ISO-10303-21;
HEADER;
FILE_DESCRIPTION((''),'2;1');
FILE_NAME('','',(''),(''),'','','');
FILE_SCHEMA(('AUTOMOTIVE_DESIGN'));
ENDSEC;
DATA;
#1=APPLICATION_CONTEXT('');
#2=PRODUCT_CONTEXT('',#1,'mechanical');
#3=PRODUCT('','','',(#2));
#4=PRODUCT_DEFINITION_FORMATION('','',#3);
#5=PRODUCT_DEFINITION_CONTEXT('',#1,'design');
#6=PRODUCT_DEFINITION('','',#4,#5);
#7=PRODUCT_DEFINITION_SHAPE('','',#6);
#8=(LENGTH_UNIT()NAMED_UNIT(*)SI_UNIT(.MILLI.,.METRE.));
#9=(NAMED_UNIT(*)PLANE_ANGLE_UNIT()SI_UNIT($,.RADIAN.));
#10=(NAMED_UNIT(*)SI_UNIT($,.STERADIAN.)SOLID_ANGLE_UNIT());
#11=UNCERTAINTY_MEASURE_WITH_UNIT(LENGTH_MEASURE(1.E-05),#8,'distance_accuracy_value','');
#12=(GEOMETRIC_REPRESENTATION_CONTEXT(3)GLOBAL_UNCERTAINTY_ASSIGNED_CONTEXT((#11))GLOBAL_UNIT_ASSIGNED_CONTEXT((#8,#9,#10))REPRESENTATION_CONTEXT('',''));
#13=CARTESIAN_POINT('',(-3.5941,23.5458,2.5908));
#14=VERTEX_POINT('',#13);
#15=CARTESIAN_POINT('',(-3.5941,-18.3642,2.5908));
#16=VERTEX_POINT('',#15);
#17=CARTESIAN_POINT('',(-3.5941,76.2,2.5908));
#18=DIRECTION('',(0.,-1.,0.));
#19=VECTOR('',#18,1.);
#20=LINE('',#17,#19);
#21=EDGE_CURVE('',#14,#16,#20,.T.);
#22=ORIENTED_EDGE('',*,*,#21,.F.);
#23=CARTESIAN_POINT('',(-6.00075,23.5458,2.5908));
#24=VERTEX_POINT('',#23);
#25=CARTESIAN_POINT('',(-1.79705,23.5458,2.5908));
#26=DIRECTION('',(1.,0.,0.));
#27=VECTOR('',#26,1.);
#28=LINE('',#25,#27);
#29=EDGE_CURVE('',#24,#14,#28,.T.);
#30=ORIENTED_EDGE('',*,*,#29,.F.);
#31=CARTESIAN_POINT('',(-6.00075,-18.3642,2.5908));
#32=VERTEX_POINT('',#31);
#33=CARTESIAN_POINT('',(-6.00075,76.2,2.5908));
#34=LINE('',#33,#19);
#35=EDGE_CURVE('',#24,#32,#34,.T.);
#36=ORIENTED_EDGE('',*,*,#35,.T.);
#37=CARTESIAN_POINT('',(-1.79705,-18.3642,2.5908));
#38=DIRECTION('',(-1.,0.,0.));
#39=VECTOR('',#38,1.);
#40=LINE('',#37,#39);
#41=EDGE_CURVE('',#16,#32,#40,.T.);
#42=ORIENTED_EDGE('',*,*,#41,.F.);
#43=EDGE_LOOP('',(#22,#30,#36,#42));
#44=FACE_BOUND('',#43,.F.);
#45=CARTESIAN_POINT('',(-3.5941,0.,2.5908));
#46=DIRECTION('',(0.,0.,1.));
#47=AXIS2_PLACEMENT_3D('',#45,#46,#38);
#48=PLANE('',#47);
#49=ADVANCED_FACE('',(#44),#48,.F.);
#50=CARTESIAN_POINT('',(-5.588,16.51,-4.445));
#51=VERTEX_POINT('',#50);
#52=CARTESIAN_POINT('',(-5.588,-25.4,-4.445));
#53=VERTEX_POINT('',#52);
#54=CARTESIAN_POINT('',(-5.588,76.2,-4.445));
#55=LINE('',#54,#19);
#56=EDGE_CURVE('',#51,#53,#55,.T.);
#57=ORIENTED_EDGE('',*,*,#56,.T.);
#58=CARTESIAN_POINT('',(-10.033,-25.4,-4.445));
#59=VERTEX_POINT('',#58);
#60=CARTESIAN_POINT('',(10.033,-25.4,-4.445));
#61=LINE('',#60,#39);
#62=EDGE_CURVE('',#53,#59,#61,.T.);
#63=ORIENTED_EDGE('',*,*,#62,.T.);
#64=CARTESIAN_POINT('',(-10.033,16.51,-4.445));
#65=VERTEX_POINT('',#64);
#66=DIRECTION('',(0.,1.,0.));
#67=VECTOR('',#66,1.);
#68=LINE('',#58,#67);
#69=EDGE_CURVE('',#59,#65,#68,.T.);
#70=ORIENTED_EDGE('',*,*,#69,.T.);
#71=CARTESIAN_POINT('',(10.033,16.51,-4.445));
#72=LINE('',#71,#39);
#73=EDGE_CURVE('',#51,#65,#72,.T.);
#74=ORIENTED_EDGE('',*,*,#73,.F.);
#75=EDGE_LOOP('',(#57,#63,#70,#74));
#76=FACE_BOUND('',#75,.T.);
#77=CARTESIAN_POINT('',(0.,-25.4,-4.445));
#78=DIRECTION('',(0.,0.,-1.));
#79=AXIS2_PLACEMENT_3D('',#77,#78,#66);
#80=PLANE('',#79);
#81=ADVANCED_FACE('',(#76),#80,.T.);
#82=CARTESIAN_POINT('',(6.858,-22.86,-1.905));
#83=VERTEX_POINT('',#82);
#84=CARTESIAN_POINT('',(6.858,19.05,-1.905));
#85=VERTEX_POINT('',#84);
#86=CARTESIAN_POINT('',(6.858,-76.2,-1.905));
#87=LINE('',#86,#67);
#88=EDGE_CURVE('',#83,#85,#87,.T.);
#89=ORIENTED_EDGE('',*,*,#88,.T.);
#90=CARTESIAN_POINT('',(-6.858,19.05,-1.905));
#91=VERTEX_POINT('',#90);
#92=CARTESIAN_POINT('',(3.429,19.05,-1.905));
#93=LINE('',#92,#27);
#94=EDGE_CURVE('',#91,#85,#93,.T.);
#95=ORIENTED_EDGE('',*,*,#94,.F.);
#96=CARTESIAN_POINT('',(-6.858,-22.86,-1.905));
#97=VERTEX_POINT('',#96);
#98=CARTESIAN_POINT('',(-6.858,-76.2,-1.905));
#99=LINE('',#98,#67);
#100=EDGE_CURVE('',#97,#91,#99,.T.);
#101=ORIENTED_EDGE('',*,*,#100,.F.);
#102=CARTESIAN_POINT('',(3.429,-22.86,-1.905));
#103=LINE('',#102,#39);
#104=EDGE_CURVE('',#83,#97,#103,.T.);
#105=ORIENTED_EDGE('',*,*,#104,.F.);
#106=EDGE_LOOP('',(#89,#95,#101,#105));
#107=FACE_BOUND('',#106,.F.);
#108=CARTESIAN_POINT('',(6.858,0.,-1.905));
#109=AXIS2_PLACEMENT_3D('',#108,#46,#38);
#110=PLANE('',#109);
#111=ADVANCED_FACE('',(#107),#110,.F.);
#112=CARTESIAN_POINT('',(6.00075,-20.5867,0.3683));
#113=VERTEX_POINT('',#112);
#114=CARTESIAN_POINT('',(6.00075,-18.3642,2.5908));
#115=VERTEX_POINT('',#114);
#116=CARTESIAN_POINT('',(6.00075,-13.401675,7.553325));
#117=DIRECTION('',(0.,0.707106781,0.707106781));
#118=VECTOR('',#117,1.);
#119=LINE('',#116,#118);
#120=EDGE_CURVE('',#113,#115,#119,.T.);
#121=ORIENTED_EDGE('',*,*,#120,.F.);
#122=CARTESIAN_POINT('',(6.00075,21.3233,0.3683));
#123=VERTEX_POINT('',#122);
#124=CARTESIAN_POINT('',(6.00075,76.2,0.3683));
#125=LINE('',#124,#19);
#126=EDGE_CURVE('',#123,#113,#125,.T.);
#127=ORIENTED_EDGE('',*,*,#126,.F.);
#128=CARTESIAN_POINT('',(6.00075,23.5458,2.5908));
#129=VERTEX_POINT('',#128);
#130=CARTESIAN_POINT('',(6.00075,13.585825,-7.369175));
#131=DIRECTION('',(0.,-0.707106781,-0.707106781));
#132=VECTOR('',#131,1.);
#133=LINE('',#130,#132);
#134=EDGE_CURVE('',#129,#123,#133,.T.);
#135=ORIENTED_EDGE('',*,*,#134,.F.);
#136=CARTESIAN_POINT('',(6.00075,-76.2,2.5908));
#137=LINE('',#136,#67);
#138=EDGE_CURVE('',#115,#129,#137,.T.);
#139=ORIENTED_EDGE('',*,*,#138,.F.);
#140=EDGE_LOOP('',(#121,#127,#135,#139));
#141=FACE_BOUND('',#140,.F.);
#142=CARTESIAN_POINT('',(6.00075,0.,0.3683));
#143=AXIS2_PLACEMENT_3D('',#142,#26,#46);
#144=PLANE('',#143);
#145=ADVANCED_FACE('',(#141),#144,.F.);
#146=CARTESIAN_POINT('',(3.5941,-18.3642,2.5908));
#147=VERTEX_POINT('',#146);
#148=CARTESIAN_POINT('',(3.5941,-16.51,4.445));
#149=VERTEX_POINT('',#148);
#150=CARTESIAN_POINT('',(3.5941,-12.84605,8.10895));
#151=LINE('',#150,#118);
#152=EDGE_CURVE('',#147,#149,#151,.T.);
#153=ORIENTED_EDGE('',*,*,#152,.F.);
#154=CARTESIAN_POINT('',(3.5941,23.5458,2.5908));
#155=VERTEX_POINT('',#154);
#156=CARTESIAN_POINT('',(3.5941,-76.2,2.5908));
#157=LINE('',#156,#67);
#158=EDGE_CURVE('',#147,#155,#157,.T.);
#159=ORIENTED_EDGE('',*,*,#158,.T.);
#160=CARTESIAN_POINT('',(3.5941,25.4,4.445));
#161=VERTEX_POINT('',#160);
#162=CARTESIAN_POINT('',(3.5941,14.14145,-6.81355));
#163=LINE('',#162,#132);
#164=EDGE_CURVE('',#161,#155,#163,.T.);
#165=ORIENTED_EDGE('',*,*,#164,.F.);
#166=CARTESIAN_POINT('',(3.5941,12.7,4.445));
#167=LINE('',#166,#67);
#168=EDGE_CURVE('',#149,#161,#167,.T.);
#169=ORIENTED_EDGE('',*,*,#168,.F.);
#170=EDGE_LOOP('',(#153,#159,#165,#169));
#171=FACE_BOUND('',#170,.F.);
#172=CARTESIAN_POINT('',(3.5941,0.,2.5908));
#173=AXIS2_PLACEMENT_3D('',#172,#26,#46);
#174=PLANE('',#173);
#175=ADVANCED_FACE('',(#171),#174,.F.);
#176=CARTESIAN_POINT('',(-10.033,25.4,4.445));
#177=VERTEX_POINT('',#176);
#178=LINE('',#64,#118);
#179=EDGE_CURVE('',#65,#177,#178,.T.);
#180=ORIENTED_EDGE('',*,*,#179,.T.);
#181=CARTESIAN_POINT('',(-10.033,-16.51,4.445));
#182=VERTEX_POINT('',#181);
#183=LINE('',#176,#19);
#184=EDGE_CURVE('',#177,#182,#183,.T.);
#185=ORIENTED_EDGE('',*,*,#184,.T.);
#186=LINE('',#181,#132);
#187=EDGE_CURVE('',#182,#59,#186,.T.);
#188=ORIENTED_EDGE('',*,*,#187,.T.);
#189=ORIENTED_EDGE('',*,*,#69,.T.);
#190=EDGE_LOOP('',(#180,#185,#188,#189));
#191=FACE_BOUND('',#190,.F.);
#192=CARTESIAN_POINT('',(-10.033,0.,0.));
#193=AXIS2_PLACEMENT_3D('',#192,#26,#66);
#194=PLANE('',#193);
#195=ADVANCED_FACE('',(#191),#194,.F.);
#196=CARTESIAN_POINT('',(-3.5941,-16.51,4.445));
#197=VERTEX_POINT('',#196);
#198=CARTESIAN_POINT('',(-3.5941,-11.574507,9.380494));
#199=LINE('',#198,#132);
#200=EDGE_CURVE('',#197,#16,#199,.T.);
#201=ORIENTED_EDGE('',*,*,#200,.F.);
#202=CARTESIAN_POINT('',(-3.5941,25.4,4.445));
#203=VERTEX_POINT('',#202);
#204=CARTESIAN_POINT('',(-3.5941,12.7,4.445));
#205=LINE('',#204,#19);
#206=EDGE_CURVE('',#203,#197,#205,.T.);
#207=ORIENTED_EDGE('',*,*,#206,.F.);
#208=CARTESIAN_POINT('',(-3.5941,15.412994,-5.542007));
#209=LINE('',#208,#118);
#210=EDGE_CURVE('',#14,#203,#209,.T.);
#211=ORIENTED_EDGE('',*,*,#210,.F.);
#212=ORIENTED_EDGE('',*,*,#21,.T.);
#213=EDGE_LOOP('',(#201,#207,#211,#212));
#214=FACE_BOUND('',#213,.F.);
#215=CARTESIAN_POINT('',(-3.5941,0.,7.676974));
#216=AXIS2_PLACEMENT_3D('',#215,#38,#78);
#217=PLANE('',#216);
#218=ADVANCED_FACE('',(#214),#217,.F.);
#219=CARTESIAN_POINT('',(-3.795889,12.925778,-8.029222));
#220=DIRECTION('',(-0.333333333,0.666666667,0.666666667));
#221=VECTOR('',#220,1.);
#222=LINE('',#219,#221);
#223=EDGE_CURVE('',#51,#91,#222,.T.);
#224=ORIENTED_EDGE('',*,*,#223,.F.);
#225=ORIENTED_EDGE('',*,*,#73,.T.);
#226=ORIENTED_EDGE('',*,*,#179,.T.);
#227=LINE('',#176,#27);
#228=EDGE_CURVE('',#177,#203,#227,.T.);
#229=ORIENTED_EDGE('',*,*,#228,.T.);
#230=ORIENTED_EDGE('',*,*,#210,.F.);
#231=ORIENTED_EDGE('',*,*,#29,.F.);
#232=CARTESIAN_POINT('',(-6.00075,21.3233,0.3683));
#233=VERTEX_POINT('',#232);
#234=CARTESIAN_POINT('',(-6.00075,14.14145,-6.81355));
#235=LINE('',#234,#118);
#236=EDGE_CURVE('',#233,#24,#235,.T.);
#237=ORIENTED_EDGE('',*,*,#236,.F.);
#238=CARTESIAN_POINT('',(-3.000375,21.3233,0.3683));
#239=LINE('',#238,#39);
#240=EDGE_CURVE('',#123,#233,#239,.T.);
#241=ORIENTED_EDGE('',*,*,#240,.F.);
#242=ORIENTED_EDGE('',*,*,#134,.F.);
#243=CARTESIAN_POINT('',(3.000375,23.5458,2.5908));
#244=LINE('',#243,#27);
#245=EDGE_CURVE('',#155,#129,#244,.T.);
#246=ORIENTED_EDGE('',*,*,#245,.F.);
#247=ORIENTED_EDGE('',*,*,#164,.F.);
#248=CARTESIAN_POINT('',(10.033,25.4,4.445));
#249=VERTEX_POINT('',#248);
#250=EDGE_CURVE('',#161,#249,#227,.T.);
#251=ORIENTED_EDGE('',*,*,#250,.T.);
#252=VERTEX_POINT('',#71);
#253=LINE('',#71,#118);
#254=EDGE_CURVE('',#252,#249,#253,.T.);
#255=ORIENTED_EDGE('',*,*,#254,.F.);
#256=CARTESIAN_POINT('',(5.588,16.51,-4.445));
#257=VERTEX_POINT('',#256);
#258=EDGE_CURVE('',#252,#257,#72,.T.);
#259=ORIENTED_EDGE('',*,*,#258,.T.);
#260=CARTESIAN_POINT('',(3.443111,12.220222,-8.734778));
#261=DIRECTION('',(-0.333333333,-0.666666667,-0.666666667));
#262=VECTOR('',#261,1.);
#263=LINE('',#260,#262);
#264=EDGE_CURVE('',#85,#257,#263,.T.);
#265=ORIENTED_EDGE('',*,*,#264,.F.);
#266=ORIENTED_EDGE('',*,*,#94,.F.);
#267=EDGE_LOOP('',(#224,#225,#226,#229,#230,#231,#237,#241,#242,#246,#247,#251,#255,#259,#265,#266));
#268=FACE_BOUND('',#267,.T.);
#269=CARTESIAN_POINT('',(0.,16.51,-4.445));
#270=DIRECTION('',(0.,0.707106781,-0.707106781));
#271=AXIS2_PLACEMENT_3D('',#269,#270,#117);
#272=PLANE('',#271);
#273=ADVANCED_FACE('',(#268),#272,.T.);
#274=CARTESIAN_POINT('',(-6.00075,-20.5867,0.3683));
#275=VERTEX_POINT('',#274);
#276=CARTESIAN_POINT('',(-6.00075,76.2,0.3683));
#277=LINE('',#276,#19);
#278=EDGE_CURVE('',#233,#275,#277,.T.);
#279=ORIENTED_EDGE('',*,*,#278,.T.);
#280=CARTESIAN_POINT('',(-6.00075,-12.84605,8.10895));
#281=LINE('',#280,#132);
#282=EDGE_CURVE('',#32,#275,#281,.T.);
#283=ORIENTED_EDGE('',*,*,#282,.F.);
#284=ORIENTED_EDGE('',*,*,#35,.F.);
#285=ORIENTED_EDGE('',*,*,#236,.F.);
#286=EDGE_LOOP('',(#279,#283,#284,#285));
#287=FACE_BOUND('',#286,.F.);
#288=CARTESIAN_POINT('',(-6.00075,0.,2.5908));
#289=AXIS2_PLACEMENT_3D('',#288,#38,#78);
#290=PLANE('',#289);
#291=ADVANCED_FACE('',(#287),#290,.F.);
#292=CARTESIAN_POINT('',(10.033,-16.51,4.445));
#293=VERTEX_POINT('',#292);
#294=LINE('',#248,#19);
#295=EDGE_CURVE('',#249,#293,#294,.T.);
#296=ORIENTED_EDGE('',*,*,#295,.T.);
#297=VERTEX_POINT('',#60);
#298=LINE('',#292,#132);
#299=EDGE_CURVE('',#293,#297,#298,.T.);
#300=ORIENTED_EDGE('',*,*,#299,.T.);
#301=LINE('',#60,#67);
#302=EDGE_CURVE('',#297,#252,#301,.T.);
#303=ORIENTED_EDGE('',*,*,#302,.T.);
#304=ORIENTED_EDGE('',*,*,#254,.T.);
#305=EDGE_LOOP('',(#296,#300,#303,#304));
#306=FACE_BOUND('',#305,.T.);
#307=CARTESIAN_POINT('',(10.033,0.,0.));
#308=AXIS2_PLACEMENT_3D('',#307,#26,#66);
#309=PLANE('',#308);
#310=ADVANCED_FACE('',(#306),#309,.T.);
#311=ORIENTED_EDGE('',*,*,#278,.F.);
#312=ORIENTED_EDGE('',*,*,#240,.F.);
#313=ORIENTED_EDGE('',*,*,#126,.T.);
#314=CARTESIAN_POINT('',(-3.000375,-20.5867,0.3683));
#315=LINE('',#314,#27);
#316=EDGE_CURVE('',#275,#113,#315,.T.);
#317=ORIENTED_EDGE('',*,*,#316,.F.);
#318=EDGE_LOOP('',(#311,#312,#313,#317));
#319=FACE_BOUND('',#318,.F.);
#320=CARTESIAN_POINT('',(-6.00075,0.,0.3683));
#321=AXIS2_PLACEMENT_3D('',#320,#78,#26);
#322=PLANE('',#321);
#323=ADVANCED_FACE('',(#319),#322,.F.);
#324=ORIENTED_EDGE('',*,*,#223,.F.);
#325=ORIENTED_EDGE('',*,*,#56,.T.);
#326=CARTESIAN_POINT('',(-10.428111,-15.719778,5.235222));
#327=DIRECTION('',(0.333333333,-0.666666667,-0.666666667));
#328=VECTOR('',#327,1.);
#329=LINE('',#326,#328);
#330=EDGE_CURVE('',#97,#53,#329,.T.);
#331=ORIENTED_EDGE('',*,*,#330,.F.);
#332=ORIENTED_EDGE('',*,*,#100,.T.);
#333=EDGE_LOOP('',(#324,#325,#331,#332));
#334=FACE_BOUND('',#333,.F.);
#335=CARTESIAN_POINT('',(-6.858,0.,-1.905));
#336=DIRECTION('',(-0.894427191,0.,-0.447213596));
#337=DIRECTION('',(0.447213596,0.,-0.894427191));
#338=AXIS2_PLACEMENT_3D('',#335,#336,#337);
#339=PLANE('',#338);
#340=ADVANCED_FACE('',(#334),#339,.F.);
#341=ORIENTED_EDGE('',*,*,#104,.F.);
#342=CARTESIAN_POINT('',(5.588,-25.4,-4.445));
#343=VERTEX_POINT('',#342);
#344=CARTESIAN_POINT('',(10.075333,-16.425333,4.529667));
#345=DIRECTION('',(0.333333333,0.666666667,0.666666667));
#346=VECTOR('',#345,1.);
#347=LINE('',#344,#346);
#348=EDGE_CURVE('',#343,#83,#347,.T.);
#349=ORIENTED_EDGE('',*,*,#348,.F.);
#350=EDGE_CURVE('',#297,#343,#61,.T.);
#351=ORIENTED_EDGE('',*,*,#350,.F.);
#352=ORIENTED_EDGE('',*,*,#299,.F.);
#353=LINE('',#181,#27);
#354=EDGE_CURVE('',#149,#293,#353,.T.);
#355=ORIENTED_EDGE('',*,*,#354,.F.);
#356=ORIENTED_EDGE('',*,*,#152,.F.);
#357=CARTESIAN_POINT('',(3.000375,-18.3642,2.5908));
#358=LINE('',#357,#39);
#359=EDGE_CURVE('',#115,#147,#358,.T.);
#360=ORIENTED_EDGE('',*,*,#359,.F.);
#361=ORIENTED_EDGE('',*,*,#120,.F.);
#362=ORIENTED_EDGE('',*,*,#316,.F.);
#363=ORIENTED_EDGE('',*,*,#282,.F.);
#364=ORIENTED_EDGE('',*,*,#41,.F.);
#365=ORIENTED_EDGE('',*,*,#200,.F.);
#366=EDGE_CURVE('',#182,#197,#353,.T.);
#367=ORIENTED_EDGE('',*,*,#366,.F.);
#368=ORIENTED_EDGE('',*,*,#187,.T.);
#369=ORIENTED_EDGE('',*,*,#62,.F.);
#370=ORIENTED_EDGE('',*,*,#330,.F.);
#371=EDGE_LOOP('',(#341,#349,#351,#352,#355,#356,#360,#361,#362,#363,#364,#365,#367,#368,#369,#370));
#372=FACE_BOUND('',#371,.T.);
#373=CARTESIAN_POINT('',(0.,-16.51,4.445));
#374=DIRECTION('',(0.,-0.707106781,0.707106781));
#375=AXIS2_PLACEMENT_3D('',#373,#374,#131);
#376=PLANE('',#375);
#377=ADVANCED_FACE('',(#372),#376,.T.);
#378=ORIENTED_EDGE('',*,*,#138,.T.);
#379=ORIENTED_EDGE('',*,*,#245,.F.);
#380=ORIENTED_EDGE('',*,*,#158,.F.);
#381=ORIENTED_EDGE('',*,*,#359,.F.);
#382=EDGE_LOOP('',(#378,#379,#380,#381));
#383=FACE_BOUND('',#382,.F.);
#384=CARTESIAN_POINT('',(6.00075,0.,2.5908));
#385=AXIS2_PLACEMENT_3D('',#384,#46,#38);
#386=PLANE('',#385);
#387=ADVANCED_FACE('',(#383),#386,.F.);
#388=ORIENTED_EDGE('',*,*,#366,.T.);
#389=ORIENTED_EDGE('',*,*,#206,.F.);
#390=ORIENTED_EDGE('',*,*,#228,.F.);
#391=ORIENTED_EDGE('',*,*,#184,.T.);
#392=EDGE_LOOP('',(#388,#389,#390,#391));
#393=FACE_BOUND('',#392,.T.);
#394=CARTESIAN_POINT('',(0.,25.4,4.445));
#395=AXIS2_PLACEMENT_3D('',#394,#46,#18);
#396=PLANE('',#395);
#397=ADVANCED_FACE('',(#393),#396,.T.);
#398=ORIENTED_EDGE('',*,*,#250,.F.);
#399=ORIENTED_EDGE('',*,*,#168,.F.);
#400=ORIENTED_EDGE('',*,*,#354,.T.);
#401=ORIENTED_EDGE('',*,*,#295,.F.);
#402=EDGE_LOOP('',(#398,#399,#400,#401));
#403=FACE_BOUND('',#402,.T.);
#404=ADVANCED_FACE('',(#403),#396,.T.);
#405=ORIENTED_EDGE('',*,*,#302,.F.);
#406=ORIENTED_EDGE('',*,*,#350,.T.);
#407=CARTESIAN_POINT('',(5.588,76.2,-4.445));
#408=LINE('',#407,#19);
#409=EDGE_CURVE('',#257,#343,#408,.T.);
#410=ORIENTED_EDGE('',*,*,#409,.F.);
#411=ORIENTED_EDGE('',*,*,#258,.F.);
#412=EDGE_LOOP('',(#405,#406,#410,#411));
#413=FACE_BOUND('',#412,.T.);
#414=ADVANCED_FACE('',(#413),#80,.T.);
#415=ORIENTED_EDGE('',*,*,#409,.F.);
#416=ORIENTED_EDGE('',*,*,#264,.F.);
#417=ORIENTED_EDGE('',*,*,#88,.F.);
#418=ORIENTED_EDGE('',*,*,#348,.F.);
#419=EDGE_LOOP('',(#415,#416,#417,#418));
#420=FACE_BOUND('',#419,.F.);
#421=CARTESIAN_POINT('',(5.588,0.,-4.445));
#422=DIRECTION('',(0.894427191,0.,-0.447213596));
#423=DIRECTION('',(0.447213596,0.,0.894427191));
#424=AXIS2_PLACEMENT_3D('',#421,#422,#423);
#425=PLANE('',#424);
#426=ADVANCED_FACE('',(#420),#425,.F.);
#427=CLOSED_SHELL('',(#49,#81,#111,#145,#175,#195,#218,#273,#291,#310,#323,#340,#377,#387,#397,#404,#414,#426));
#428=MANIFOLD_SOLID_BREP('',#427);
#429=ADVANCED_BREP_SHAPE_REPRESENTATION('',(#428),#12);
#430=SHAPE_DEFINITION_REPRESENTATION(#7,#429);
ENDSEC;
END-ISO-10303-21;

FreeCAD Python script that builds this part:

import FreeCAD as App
import Part
import Sketcher
Q = App.Units.Quantity


def add_polygon(sketch, points):
    """Adds a closed chain of lines whose ends are joined by coincident constraints."""
    first, n = sketch.GeometryCount, len(points)
    for a, b in zip(points, points[1:] + points[:1]):
        sketch.addGeometry(Part.LineSegment(App.Vector(*a, 0), App.Vector(*b, 0)), False)
    for i in range(n):
        sketch.addConstraint(Sketcher.Constraint("Coincident", first + i, 2, first + (i + 1) % n, 1))

doc = App.newDocument("Part")
params = doc.addObject("Spreadsheet::Sheet", "Params")
for row, (alias, value) in enumerate([
    ("sketch1_width", "1.65 in"),
    ("pad1_length", "0.79 in"),
    ("sketch2_width", "0.283 in"),
    ("pocket1_length", "6 in"),
    ("sketch3_width", "0.44 in"),
    ("sketch3_width2", "0.54 in"),
    ("pocket2_length", "6 in"),
], start=1):
    params.set(f"A{row}", alias)
    params.set(f"B{row}", "=" + value)
    params.setAlias(f"B{row}", alias)

body = doc.addObject("PartDesign::Body", "Body")

# Sketch on YZ plane
sketch1 = doc.addObject("Sketcher::SketchObject", "Sketch")
body.addObject(sketch1)
sketch1.AttachmentSupport = (doc.YZ_Plane, [""])
sketch1.MapMode = "FlatFace"
add_polygon(sketch1, [(16.51, -4.445), (25.4, 4.445), (-16.51, 4.445), (-25.4, -4.445)])  # lines 0-3
sketch1.addConstraint(Sketcher.Constraint("Horizontal", 1))
sketch1.addConstraint(Sketcher.Constraint("Horizontal", 3))
sketch1.addConstraint(Sketcher.Constraint("Symmetric", 0, 2, 2, 2, -1, 1))
sketch1.addConstraint(Sketcher.Constraint("Parallel", 0, 2))
sketch1.addConstraint(Sketcher.Constraint("DistanceX", -1, 1, 0, 2, Q("1 in")))
sketch1.addConstraint(Sketcher.Constraint("Angle", 0, Q("45 deg")))
sketch1.addConstraint(Sketcher.Constraint("DistanceX", 1, 2, 1, 1, Q("1.65 in")))
sketch1.setExpression("Constraints[10]", "Params.sketch1_width")
pad1 = doc.addObject("PartDesign::Pad", "Pad")
body.addObject(pad1)
pad1.Profile = sketch1
pad1.setExpression("Length", "Params.pad1_length")
pad1.Midplane = True

# Sketch on XZ plane
sketch2 = doc.addObject("Sketcher::SketchObject", "Sketch001")
body.addObject(sketch2)
sketch2.AttachmentSupport = (doc.XZ_Plane, [""])
sketch2.MapMode = "FlatFace"
add_polygon(sketch2, [(3.5941, 7.676974), (-3.5941, 7.676974), (-3.5941, 2.5908), (-6.00075, 2.5908), (-6.00075, 0.3683), (6.00075, 0.3683), (6.00075, 2.5908), (3.5941, 2.5908)])  # lines 0-7
sketch2.addConstraint(Sketcher.Constraint("Horizontal", 0))
sketch2.addConstraint(Sketcher.Constraint("Vertical", 1))
sketch2.addConstraint(Sketcher.Constraint("Horizontal", 2))
sketch2.addConstraint(Sketcher.Constraint("Vertical", 3))
sketch2.addConstraint(Sketcher.Constraint("Horizontal", 4))
sketch2.addConstraint(Sketcher.Constraint("Vertical", 5))
sketch2.addConstraint(Sketcher.Constraint("Horizontal", 6))
sketch2.addConstraint(Sketcher.Constraint("Vertical", 7))
sketch2.addConstraint(Sketcher.Constraint("Symmetric", 2, 2, 5, 2, -2))
sketch2.addConstraint(Sketcher.Constraint("Equal", 2, 6))
sketch2.addConstraint(Sketcher.Constraint("DistanceX", 0, 2, 0, 1, Q("0.283 in")))
sketch2.addConstraint(Sketcher.Constraint("DistanceX", 4, 1, 4, 2, Q("0.4725 in")))
sketch2.addConstraint(Sketcher.Constraint("DistanceY", 3, 2, 3, 1, Q("0.0875 in")))
sketch2.addConstraint(Sketcher.Constraint("DistanceY", -1, 1, 1, 2, Q("0.102 in")))
sketch2.addConstraint(Sketcher.Constraint("DistanceY", 1, 2, 1, 1, 5.086174))
sketch2.setExpression("Constraints[18]", "Params.sketch2_width")
pocket1 = doc.addObject("PartDesign::Pocket", "Pocket")
body.addObject(pocket1)
pocket1.Profile = sketch2
pocket1.setExpression("Length", "Params.pocket1_length")
pocket1.Midplane = True

# Sketch on XZ plane
sketch3 = doc.addObject("Sketcher::SketchObject", "Sketch002")
body.addObject(sketch3)
sketch3.AttachmentSupport = (doc.XZ_Plane, [""])
sketch3.MapMode = "FlatFace"
add_polygon(sketch3, [(-6.858, -1.905), (-5.588, -4.445), (5.588, -4.445), (6.858, -1.905)])  # lines 0-3
sketch3.addConstraint(Sketcher.Constraint("Horizontal", 1))
sketch3.addConstraint(Sketcher.Constraint("Horizontal", 3))
sketch3.addConstraint(Sketcher.Constraint("Equal", 0, 2))
sketch3.addConstraint(Sketcher.Constraint("DistanceX", 1, 1, 1, 2, Q("0.44 in")))
sketch3.addConstraint(Sketcher.Constraint("DistanceX", 3, 2, 3, 1, Q("0.54 in")))
sketch3.addConstraint(Sketcher.Constraint("DistanceY", 1, 2, 2, 2, Q("0.1 in")))
sketch3.addConstraint(Sketcher.Constraint("DistanceX", 0, 2, -1, 1, Q("0.22 in")))
sketch3.addConstraint(Sketcher.Constraint("DistanceY", 0, 2, -1, 1, Q("0.175 in")))
sketch3.setExpression("Constraints[7]", "Params.sketch3_width")
sketch3.setExpression("Constraints[8]", "Params.sketch3_width2")
pocket2 = doc.addObject("PartDesign::Pocket", "Pocket001")
body.addObject(pocket2)
pocket2.Profile = sketch3
pocket2.setExpression("Length", "Params.pocket2_length")
pocket2.Midplane = True

doc.recompute()
